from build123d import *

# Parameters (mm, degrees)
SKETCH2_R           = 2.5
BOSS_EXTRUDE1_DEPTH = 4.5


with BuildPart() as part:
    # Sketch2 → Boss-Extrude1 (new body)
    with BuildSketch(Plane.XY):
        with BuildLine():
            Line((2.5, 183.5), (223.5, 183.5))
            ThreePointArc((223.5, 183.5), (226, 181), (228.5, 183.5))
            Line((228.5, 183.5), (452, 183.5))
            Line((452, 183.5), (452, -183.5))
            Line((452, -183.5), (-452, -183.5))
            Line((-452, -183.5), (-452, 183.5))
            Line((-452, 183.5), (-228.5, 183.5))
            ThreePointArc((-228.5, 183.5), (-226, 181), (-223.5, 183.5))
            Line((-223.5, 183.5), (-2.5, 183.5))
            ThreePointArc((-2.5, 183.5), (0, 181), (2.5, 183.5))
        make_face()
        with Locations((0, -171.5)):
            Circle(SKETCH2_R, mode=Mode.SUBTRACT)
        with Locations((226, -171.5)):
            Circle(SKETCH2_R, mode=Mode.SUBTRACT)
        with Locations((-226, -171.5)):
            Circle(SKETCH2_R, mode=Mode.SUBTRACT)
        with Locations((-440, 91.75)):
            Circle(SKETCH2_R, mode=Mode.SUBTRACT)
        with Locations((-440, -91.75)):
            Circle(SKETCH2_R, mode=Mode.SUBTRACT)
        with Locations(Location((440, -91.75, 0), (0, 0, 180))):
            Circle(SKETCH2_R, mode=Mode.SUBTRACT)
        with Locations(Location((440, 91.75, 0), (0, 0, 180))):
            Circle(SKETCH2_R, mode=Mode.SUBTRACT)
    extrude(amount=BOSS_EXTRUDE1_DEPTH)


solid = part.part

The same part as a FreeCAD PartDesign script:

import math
import FreeCAD as App
import Part
import Sketcher
Q = App.Units.Quantity

doc = App.newDocument("Part")
body = doc.addObject("PartDesign::Body", "Body")

# Sketch on XY plane
sketch1 = body.newObject("Sketcher::SketchObject", "Sketch")
sketch1.AttachmentSupport = (doc.getObject("XY_Plane"), [""])
sketch1.MapMode = "FlatFace"
sketch1.addGeometry([
    Part.LineSegment(App.Vector(223.5, 183.5, 0), App.Vector(2.5, 183.5, 0)),  # 0
    Part.ArcOfCircle(Part.Circle(App.Vector(0, 183.5, 0), App.Vector(0, 0, 1), 2.5), math.radians(180), math.radians(360)),  # 1
    Part.LineSegment(App.Vector(-2.5, 183.5, 0), App.Vector(-223.5, 183.5, 0)),  # 2
    Part.ArcOfCircle(Part.Circle(App.Vector(-226, 183.5, 0), App.Vector(0, 0, 1), 2.5), math.radians(180), math.radians(360)),  # 3
    Part.LineSegment(App.Vector(-228.5, 183.5, 0), App.Vector(-452, 183.5, 0)),  # 4
    Part.LineSegment(App.Vector(-452, 183.5, 0), App.Vector(-452, -183.5, 0)),  # 5
    Part.LineSegment(App.Vector(-452, -183.5, 0), App.Vector(452, -183.5, 0)),  # 6
    Part.LineSegment(App.Vector(452, -183.5, 0), App.Vector(452, 183.5, 0)),  # 7
    Part.LineSegment(App.Vector(452, 183.5, 0), App.Vector(228.5, 183.5, 0)),  # 8
    Part.ArcOfCircle(Part.Circle(App.Vector(226, 183.5, 0), App.Vector(0, 0, 1), 2.5), math.radians(180), math.radians(360)),  # 9
    Part.Circle(App.Vector(226, -171.5, 0), App.Vector(0, 0, 1), 2.5),  # 10
    Part.Circle(App.Vector(440, -91.75, 0), App.Vector(0, 0, 1), 2.5),  # 11
    Part.Circle(App.Vector(0, -171.5, 0), App.Vector(0, 0, 1), 2.5),  # 12
    Part.Circle(App.Vector(-226, -171.5, 0), App.Vector(0, 0, 1), 2.5),  # 13
    Part.Circle(App.Vector(-440, -91.75, 0), App.Vector(0, 0, 1), 2.5),  # 14
    Part.Circle(App.Vector(440, 91.75, 0), App.Vector(0, 0, 1), 2.5),  # 15
    Part.Circle(App.Vector(-440, 91.75, 0), App.Vector(0, 0, 1), 2.5),  # 16
], False)
sketch1.addConstraint([
    Sketcher.Constraint("Coincident", 0, 2, 1, 2),
    Sketcher.Constraint("Coincident", 1, 1, 2, 1),
    Sketcher.Constraint("Coincident", 2, 2, 3, 2),
    Sketcher.Constraint("Coincident", 3, 1, 4, 1),
    Sketcher.Constraint("Coincident", 4, 2, 5, 1),
    Sketcher.Constraint("Coincident", 5, 2, 6, 1),
    Sketcher.Constraint("Coincident", 6, 2, 7, 1),
    Sketcher.Constraint("Coincident", 7, 2, 8, 1),
    Sketcher.Constraint("Coincident", 8, 2, 9, 2),
    Sketcher.Constraint("Coincident", 9, 1, 0, 1),
    Sketcher.Constraint("Horizontal", 0),
    Sketcher.Constraint("Horizontal", 2),
    Sketcher.Constraint("Horizontal", 4),
    Sketcher.Constraint("Vertical", 5),
    Sketcher.Constraint("Horizontal", 6),
    Sketcher.Constraint("Vertical", 7),
    Sketcher.Constraint("Horizontal", 8),
    Sketcher.Constraint("Equal", 1, 3),
    Sketcher.Constraint("Equal", 3, 9),
    Sketcher.Constraint("Equal", 9, 10),
    Sketcher.Constraint("Equal", 10, 11),
    Sketcher.Constraint("Equal", 11, 12),
    Sketcher.Constraint("Equal", 12, 13),
    Sketcher.Constraint("Equal", 13, 14),
    Sketcher.Constraint("Equal", 14, 15),
    Sketcher.Constraint("Equal", 15, 16),
    Sketcher.Constraint("Symmetric", 14, 3, 15, 3, -1, 1),
    Sketcher.Constraint("Symmetric", 11, 3, 16, 3, -1, 1),
    Sketcher.Constraint("Symmetric", 4, 2, 6, 2, -1, 1),
    Sketcher.Constraint("Symmetric", 3, 3, 9, 3, -2),
    Sketcher.Constraint("Symmetric", 10, 3, 13, 3, -2),
    Sketcher.Constraint("Symmetric", 11, 3, 14, 3, -2),
    Sketcher.Constraint("Symmetric", 0, 2, 1, 1, -2),
    Sketcher.Constraint("PointOnObject", 12, 3, -2),
    Sketcher.Constraint("Horizontal", 1, 3, 3, 3),
    Sketcher.Constraint("Horizontal", 10, 3, 12, 3),
    Sketcher.Constraint("Horizontal", 9, 3, 0, 2),
    Sketcher.Constraint("Horizontal", 2, 2, 3, 1),
    Sketcher.Constraint("Horizontal", 4, 2, 7, 2),
    Sketcher.Constraint("Vertical", 9, 3, 10, 3),
    Sketcher.Constraint("Diameter", 10, Q("5 mm")),
    Sketcher.Constraint("DistanceX", 0, 2, 0, 1, Q("221 mm")),
    Sketcher.Constraint("DistanceX", 6, 1, 6, 2, Q("904 mm")),
    Sketcher.Constraint("DistanceY", 5, 2, 5, 1, Q("367 mm")),
    Sketcher.Constraint("DistanceX", -1, 1, 11, 3, Q("440 mm")),
    Sketcher.Constraint("DistanceY", 10, 3, 9, 3, Q("355 mm")),
    Sketcher.Constraint("DistanceY", 11, 3, 15, 3, Q("183.5 mm")),
])
pad1 = body.newObject("PartDesign::Pad", "Pad")
pad1.Profile = sketch1
pad1.Length = 4.5

doc.recompute()
